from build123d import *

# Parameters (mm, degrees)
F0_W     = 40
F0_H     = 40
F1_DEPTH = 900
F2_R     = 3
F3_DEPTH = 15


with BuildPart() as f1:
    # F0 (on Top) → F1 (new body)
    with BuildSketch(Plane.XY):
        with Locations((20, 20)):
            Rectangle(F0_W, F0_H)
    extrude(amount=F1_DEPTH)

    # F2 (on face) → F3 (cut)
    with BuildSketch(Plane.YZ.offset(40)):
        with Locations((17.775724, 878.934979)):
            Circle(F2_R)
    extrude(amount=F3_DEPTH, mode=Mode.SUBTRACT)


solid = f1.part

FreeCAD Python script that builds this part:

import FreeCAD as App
import Part
import Sketcher
from FreeCAD import Vector
Q = App.Units.Quantity

doc = App.newDocument("Part")
params = doc.addObject("Spreadsheet::Sheet", "Params")
for row, (alias, value) in enumerate([
    ("sketch1_width", "40 mm"),
    ("pad1_length", "900 mm"),
    ("sketch2_diameter", "6 mm"),
    ("pocket1_length", "15 mm"),
], start=1):
    params.set(f"A{row}", alias)
    params.set(f"B{row}", "=" + value)
    params.setAlias(f"B{row}", alias)

body = doc.addObject("PartDesign::Body", "Body")

sketch1 = body.newObject("Sketcher::SketchObject", "Sketch")
sketch1.AttachmentSupport = (doc.getObject("XY_Plane"), [""])
sketch1.MapMode = "FlatFace"
sketch1.addGeometry([
    Part.LineSegment(Vector(0, 40, 0), Vector(0, 0, 0)),
    Part.LineSegment(Vector(0, 0, 0), Vector(40, 0, 0)),
    Part.LineSegment(Vector(40, 0, 0), Vector(40, 40, 0)),
    Part.LineSegment(Vector(40, 40, 0), Vector(0, 40, 0)),
], False)
sketch1.addConstraint([
    Sketcher.Constraint("Coincident", 0, 2, 1, 1),
    Sketcher.Constraint("Coincident", 1, 2, 2, 1),
    Sketcher.Constraint("Coincident", 2, 2, 3, 1),
    Sketcher.Constraint("Coincident", 3, 2, 0, 1),
    Sketcher.Constraint("Vertical", 0),
    Sketcher.Constraint("Horizontal", 1),
    Sketcher.Constraint("Vertical", 2),
    Sketcher.Constraint("Horizontal", 3),
    Sketcher.Constraint("Coincident", 0, 2, -1, 1),
    Sketcher.Constraint("Equal", 3, 0),
    Sketcher.Constraint("DistanceX", 1, 1, 1, 2, Q("40 mm")),
])
sketch1.setExpression("Constraints[10]", "Params.sketch1_width")
pad1 = body.newObject("PartDesign::Pad", "Pad")
pad1.Profile = sketch1
pad1.setExpression("Length", "Params.pad1_length")

sketch2 = body.newObject("Sketcher::SketchObject", "Sketch001")
sketch2.AttachmentSupport = (doc.getObject("YZ_Plane"), [""])
sketch2.MapMode = "FlatFace"
sketch2.AttachmentOffset = App.Placement(Vector(0, 0, 40), App.Rotation())
sketch2.addGeometry(Part.Circle(Vector(17.8, 878.9, 0), Vector(0, 0, 1), 3), False)
sketch2.addConstraint([
    Sketcher.Constraint("Diameter", 0, Q("6 mm")),
    Sketcher.Constraint("DistanceY", -1, 1, 0, 3, Q("878.934979 mm")),
    Sketcher.Constraint("DistanceX", -1, 1, 0, 3, Q("17.775724 mm")),
])
sketch2.setExpression("Constraints[0]", "Params.sketch2_diameter")
pocket1 = body.newObject("PartDesign::Pocket", "Pocket")
pocket1.Profile = sketch2
pocket1.setExpression("Length", "Params.pocket1_length")
pocket1.Reversed = True

doc.recompute()
